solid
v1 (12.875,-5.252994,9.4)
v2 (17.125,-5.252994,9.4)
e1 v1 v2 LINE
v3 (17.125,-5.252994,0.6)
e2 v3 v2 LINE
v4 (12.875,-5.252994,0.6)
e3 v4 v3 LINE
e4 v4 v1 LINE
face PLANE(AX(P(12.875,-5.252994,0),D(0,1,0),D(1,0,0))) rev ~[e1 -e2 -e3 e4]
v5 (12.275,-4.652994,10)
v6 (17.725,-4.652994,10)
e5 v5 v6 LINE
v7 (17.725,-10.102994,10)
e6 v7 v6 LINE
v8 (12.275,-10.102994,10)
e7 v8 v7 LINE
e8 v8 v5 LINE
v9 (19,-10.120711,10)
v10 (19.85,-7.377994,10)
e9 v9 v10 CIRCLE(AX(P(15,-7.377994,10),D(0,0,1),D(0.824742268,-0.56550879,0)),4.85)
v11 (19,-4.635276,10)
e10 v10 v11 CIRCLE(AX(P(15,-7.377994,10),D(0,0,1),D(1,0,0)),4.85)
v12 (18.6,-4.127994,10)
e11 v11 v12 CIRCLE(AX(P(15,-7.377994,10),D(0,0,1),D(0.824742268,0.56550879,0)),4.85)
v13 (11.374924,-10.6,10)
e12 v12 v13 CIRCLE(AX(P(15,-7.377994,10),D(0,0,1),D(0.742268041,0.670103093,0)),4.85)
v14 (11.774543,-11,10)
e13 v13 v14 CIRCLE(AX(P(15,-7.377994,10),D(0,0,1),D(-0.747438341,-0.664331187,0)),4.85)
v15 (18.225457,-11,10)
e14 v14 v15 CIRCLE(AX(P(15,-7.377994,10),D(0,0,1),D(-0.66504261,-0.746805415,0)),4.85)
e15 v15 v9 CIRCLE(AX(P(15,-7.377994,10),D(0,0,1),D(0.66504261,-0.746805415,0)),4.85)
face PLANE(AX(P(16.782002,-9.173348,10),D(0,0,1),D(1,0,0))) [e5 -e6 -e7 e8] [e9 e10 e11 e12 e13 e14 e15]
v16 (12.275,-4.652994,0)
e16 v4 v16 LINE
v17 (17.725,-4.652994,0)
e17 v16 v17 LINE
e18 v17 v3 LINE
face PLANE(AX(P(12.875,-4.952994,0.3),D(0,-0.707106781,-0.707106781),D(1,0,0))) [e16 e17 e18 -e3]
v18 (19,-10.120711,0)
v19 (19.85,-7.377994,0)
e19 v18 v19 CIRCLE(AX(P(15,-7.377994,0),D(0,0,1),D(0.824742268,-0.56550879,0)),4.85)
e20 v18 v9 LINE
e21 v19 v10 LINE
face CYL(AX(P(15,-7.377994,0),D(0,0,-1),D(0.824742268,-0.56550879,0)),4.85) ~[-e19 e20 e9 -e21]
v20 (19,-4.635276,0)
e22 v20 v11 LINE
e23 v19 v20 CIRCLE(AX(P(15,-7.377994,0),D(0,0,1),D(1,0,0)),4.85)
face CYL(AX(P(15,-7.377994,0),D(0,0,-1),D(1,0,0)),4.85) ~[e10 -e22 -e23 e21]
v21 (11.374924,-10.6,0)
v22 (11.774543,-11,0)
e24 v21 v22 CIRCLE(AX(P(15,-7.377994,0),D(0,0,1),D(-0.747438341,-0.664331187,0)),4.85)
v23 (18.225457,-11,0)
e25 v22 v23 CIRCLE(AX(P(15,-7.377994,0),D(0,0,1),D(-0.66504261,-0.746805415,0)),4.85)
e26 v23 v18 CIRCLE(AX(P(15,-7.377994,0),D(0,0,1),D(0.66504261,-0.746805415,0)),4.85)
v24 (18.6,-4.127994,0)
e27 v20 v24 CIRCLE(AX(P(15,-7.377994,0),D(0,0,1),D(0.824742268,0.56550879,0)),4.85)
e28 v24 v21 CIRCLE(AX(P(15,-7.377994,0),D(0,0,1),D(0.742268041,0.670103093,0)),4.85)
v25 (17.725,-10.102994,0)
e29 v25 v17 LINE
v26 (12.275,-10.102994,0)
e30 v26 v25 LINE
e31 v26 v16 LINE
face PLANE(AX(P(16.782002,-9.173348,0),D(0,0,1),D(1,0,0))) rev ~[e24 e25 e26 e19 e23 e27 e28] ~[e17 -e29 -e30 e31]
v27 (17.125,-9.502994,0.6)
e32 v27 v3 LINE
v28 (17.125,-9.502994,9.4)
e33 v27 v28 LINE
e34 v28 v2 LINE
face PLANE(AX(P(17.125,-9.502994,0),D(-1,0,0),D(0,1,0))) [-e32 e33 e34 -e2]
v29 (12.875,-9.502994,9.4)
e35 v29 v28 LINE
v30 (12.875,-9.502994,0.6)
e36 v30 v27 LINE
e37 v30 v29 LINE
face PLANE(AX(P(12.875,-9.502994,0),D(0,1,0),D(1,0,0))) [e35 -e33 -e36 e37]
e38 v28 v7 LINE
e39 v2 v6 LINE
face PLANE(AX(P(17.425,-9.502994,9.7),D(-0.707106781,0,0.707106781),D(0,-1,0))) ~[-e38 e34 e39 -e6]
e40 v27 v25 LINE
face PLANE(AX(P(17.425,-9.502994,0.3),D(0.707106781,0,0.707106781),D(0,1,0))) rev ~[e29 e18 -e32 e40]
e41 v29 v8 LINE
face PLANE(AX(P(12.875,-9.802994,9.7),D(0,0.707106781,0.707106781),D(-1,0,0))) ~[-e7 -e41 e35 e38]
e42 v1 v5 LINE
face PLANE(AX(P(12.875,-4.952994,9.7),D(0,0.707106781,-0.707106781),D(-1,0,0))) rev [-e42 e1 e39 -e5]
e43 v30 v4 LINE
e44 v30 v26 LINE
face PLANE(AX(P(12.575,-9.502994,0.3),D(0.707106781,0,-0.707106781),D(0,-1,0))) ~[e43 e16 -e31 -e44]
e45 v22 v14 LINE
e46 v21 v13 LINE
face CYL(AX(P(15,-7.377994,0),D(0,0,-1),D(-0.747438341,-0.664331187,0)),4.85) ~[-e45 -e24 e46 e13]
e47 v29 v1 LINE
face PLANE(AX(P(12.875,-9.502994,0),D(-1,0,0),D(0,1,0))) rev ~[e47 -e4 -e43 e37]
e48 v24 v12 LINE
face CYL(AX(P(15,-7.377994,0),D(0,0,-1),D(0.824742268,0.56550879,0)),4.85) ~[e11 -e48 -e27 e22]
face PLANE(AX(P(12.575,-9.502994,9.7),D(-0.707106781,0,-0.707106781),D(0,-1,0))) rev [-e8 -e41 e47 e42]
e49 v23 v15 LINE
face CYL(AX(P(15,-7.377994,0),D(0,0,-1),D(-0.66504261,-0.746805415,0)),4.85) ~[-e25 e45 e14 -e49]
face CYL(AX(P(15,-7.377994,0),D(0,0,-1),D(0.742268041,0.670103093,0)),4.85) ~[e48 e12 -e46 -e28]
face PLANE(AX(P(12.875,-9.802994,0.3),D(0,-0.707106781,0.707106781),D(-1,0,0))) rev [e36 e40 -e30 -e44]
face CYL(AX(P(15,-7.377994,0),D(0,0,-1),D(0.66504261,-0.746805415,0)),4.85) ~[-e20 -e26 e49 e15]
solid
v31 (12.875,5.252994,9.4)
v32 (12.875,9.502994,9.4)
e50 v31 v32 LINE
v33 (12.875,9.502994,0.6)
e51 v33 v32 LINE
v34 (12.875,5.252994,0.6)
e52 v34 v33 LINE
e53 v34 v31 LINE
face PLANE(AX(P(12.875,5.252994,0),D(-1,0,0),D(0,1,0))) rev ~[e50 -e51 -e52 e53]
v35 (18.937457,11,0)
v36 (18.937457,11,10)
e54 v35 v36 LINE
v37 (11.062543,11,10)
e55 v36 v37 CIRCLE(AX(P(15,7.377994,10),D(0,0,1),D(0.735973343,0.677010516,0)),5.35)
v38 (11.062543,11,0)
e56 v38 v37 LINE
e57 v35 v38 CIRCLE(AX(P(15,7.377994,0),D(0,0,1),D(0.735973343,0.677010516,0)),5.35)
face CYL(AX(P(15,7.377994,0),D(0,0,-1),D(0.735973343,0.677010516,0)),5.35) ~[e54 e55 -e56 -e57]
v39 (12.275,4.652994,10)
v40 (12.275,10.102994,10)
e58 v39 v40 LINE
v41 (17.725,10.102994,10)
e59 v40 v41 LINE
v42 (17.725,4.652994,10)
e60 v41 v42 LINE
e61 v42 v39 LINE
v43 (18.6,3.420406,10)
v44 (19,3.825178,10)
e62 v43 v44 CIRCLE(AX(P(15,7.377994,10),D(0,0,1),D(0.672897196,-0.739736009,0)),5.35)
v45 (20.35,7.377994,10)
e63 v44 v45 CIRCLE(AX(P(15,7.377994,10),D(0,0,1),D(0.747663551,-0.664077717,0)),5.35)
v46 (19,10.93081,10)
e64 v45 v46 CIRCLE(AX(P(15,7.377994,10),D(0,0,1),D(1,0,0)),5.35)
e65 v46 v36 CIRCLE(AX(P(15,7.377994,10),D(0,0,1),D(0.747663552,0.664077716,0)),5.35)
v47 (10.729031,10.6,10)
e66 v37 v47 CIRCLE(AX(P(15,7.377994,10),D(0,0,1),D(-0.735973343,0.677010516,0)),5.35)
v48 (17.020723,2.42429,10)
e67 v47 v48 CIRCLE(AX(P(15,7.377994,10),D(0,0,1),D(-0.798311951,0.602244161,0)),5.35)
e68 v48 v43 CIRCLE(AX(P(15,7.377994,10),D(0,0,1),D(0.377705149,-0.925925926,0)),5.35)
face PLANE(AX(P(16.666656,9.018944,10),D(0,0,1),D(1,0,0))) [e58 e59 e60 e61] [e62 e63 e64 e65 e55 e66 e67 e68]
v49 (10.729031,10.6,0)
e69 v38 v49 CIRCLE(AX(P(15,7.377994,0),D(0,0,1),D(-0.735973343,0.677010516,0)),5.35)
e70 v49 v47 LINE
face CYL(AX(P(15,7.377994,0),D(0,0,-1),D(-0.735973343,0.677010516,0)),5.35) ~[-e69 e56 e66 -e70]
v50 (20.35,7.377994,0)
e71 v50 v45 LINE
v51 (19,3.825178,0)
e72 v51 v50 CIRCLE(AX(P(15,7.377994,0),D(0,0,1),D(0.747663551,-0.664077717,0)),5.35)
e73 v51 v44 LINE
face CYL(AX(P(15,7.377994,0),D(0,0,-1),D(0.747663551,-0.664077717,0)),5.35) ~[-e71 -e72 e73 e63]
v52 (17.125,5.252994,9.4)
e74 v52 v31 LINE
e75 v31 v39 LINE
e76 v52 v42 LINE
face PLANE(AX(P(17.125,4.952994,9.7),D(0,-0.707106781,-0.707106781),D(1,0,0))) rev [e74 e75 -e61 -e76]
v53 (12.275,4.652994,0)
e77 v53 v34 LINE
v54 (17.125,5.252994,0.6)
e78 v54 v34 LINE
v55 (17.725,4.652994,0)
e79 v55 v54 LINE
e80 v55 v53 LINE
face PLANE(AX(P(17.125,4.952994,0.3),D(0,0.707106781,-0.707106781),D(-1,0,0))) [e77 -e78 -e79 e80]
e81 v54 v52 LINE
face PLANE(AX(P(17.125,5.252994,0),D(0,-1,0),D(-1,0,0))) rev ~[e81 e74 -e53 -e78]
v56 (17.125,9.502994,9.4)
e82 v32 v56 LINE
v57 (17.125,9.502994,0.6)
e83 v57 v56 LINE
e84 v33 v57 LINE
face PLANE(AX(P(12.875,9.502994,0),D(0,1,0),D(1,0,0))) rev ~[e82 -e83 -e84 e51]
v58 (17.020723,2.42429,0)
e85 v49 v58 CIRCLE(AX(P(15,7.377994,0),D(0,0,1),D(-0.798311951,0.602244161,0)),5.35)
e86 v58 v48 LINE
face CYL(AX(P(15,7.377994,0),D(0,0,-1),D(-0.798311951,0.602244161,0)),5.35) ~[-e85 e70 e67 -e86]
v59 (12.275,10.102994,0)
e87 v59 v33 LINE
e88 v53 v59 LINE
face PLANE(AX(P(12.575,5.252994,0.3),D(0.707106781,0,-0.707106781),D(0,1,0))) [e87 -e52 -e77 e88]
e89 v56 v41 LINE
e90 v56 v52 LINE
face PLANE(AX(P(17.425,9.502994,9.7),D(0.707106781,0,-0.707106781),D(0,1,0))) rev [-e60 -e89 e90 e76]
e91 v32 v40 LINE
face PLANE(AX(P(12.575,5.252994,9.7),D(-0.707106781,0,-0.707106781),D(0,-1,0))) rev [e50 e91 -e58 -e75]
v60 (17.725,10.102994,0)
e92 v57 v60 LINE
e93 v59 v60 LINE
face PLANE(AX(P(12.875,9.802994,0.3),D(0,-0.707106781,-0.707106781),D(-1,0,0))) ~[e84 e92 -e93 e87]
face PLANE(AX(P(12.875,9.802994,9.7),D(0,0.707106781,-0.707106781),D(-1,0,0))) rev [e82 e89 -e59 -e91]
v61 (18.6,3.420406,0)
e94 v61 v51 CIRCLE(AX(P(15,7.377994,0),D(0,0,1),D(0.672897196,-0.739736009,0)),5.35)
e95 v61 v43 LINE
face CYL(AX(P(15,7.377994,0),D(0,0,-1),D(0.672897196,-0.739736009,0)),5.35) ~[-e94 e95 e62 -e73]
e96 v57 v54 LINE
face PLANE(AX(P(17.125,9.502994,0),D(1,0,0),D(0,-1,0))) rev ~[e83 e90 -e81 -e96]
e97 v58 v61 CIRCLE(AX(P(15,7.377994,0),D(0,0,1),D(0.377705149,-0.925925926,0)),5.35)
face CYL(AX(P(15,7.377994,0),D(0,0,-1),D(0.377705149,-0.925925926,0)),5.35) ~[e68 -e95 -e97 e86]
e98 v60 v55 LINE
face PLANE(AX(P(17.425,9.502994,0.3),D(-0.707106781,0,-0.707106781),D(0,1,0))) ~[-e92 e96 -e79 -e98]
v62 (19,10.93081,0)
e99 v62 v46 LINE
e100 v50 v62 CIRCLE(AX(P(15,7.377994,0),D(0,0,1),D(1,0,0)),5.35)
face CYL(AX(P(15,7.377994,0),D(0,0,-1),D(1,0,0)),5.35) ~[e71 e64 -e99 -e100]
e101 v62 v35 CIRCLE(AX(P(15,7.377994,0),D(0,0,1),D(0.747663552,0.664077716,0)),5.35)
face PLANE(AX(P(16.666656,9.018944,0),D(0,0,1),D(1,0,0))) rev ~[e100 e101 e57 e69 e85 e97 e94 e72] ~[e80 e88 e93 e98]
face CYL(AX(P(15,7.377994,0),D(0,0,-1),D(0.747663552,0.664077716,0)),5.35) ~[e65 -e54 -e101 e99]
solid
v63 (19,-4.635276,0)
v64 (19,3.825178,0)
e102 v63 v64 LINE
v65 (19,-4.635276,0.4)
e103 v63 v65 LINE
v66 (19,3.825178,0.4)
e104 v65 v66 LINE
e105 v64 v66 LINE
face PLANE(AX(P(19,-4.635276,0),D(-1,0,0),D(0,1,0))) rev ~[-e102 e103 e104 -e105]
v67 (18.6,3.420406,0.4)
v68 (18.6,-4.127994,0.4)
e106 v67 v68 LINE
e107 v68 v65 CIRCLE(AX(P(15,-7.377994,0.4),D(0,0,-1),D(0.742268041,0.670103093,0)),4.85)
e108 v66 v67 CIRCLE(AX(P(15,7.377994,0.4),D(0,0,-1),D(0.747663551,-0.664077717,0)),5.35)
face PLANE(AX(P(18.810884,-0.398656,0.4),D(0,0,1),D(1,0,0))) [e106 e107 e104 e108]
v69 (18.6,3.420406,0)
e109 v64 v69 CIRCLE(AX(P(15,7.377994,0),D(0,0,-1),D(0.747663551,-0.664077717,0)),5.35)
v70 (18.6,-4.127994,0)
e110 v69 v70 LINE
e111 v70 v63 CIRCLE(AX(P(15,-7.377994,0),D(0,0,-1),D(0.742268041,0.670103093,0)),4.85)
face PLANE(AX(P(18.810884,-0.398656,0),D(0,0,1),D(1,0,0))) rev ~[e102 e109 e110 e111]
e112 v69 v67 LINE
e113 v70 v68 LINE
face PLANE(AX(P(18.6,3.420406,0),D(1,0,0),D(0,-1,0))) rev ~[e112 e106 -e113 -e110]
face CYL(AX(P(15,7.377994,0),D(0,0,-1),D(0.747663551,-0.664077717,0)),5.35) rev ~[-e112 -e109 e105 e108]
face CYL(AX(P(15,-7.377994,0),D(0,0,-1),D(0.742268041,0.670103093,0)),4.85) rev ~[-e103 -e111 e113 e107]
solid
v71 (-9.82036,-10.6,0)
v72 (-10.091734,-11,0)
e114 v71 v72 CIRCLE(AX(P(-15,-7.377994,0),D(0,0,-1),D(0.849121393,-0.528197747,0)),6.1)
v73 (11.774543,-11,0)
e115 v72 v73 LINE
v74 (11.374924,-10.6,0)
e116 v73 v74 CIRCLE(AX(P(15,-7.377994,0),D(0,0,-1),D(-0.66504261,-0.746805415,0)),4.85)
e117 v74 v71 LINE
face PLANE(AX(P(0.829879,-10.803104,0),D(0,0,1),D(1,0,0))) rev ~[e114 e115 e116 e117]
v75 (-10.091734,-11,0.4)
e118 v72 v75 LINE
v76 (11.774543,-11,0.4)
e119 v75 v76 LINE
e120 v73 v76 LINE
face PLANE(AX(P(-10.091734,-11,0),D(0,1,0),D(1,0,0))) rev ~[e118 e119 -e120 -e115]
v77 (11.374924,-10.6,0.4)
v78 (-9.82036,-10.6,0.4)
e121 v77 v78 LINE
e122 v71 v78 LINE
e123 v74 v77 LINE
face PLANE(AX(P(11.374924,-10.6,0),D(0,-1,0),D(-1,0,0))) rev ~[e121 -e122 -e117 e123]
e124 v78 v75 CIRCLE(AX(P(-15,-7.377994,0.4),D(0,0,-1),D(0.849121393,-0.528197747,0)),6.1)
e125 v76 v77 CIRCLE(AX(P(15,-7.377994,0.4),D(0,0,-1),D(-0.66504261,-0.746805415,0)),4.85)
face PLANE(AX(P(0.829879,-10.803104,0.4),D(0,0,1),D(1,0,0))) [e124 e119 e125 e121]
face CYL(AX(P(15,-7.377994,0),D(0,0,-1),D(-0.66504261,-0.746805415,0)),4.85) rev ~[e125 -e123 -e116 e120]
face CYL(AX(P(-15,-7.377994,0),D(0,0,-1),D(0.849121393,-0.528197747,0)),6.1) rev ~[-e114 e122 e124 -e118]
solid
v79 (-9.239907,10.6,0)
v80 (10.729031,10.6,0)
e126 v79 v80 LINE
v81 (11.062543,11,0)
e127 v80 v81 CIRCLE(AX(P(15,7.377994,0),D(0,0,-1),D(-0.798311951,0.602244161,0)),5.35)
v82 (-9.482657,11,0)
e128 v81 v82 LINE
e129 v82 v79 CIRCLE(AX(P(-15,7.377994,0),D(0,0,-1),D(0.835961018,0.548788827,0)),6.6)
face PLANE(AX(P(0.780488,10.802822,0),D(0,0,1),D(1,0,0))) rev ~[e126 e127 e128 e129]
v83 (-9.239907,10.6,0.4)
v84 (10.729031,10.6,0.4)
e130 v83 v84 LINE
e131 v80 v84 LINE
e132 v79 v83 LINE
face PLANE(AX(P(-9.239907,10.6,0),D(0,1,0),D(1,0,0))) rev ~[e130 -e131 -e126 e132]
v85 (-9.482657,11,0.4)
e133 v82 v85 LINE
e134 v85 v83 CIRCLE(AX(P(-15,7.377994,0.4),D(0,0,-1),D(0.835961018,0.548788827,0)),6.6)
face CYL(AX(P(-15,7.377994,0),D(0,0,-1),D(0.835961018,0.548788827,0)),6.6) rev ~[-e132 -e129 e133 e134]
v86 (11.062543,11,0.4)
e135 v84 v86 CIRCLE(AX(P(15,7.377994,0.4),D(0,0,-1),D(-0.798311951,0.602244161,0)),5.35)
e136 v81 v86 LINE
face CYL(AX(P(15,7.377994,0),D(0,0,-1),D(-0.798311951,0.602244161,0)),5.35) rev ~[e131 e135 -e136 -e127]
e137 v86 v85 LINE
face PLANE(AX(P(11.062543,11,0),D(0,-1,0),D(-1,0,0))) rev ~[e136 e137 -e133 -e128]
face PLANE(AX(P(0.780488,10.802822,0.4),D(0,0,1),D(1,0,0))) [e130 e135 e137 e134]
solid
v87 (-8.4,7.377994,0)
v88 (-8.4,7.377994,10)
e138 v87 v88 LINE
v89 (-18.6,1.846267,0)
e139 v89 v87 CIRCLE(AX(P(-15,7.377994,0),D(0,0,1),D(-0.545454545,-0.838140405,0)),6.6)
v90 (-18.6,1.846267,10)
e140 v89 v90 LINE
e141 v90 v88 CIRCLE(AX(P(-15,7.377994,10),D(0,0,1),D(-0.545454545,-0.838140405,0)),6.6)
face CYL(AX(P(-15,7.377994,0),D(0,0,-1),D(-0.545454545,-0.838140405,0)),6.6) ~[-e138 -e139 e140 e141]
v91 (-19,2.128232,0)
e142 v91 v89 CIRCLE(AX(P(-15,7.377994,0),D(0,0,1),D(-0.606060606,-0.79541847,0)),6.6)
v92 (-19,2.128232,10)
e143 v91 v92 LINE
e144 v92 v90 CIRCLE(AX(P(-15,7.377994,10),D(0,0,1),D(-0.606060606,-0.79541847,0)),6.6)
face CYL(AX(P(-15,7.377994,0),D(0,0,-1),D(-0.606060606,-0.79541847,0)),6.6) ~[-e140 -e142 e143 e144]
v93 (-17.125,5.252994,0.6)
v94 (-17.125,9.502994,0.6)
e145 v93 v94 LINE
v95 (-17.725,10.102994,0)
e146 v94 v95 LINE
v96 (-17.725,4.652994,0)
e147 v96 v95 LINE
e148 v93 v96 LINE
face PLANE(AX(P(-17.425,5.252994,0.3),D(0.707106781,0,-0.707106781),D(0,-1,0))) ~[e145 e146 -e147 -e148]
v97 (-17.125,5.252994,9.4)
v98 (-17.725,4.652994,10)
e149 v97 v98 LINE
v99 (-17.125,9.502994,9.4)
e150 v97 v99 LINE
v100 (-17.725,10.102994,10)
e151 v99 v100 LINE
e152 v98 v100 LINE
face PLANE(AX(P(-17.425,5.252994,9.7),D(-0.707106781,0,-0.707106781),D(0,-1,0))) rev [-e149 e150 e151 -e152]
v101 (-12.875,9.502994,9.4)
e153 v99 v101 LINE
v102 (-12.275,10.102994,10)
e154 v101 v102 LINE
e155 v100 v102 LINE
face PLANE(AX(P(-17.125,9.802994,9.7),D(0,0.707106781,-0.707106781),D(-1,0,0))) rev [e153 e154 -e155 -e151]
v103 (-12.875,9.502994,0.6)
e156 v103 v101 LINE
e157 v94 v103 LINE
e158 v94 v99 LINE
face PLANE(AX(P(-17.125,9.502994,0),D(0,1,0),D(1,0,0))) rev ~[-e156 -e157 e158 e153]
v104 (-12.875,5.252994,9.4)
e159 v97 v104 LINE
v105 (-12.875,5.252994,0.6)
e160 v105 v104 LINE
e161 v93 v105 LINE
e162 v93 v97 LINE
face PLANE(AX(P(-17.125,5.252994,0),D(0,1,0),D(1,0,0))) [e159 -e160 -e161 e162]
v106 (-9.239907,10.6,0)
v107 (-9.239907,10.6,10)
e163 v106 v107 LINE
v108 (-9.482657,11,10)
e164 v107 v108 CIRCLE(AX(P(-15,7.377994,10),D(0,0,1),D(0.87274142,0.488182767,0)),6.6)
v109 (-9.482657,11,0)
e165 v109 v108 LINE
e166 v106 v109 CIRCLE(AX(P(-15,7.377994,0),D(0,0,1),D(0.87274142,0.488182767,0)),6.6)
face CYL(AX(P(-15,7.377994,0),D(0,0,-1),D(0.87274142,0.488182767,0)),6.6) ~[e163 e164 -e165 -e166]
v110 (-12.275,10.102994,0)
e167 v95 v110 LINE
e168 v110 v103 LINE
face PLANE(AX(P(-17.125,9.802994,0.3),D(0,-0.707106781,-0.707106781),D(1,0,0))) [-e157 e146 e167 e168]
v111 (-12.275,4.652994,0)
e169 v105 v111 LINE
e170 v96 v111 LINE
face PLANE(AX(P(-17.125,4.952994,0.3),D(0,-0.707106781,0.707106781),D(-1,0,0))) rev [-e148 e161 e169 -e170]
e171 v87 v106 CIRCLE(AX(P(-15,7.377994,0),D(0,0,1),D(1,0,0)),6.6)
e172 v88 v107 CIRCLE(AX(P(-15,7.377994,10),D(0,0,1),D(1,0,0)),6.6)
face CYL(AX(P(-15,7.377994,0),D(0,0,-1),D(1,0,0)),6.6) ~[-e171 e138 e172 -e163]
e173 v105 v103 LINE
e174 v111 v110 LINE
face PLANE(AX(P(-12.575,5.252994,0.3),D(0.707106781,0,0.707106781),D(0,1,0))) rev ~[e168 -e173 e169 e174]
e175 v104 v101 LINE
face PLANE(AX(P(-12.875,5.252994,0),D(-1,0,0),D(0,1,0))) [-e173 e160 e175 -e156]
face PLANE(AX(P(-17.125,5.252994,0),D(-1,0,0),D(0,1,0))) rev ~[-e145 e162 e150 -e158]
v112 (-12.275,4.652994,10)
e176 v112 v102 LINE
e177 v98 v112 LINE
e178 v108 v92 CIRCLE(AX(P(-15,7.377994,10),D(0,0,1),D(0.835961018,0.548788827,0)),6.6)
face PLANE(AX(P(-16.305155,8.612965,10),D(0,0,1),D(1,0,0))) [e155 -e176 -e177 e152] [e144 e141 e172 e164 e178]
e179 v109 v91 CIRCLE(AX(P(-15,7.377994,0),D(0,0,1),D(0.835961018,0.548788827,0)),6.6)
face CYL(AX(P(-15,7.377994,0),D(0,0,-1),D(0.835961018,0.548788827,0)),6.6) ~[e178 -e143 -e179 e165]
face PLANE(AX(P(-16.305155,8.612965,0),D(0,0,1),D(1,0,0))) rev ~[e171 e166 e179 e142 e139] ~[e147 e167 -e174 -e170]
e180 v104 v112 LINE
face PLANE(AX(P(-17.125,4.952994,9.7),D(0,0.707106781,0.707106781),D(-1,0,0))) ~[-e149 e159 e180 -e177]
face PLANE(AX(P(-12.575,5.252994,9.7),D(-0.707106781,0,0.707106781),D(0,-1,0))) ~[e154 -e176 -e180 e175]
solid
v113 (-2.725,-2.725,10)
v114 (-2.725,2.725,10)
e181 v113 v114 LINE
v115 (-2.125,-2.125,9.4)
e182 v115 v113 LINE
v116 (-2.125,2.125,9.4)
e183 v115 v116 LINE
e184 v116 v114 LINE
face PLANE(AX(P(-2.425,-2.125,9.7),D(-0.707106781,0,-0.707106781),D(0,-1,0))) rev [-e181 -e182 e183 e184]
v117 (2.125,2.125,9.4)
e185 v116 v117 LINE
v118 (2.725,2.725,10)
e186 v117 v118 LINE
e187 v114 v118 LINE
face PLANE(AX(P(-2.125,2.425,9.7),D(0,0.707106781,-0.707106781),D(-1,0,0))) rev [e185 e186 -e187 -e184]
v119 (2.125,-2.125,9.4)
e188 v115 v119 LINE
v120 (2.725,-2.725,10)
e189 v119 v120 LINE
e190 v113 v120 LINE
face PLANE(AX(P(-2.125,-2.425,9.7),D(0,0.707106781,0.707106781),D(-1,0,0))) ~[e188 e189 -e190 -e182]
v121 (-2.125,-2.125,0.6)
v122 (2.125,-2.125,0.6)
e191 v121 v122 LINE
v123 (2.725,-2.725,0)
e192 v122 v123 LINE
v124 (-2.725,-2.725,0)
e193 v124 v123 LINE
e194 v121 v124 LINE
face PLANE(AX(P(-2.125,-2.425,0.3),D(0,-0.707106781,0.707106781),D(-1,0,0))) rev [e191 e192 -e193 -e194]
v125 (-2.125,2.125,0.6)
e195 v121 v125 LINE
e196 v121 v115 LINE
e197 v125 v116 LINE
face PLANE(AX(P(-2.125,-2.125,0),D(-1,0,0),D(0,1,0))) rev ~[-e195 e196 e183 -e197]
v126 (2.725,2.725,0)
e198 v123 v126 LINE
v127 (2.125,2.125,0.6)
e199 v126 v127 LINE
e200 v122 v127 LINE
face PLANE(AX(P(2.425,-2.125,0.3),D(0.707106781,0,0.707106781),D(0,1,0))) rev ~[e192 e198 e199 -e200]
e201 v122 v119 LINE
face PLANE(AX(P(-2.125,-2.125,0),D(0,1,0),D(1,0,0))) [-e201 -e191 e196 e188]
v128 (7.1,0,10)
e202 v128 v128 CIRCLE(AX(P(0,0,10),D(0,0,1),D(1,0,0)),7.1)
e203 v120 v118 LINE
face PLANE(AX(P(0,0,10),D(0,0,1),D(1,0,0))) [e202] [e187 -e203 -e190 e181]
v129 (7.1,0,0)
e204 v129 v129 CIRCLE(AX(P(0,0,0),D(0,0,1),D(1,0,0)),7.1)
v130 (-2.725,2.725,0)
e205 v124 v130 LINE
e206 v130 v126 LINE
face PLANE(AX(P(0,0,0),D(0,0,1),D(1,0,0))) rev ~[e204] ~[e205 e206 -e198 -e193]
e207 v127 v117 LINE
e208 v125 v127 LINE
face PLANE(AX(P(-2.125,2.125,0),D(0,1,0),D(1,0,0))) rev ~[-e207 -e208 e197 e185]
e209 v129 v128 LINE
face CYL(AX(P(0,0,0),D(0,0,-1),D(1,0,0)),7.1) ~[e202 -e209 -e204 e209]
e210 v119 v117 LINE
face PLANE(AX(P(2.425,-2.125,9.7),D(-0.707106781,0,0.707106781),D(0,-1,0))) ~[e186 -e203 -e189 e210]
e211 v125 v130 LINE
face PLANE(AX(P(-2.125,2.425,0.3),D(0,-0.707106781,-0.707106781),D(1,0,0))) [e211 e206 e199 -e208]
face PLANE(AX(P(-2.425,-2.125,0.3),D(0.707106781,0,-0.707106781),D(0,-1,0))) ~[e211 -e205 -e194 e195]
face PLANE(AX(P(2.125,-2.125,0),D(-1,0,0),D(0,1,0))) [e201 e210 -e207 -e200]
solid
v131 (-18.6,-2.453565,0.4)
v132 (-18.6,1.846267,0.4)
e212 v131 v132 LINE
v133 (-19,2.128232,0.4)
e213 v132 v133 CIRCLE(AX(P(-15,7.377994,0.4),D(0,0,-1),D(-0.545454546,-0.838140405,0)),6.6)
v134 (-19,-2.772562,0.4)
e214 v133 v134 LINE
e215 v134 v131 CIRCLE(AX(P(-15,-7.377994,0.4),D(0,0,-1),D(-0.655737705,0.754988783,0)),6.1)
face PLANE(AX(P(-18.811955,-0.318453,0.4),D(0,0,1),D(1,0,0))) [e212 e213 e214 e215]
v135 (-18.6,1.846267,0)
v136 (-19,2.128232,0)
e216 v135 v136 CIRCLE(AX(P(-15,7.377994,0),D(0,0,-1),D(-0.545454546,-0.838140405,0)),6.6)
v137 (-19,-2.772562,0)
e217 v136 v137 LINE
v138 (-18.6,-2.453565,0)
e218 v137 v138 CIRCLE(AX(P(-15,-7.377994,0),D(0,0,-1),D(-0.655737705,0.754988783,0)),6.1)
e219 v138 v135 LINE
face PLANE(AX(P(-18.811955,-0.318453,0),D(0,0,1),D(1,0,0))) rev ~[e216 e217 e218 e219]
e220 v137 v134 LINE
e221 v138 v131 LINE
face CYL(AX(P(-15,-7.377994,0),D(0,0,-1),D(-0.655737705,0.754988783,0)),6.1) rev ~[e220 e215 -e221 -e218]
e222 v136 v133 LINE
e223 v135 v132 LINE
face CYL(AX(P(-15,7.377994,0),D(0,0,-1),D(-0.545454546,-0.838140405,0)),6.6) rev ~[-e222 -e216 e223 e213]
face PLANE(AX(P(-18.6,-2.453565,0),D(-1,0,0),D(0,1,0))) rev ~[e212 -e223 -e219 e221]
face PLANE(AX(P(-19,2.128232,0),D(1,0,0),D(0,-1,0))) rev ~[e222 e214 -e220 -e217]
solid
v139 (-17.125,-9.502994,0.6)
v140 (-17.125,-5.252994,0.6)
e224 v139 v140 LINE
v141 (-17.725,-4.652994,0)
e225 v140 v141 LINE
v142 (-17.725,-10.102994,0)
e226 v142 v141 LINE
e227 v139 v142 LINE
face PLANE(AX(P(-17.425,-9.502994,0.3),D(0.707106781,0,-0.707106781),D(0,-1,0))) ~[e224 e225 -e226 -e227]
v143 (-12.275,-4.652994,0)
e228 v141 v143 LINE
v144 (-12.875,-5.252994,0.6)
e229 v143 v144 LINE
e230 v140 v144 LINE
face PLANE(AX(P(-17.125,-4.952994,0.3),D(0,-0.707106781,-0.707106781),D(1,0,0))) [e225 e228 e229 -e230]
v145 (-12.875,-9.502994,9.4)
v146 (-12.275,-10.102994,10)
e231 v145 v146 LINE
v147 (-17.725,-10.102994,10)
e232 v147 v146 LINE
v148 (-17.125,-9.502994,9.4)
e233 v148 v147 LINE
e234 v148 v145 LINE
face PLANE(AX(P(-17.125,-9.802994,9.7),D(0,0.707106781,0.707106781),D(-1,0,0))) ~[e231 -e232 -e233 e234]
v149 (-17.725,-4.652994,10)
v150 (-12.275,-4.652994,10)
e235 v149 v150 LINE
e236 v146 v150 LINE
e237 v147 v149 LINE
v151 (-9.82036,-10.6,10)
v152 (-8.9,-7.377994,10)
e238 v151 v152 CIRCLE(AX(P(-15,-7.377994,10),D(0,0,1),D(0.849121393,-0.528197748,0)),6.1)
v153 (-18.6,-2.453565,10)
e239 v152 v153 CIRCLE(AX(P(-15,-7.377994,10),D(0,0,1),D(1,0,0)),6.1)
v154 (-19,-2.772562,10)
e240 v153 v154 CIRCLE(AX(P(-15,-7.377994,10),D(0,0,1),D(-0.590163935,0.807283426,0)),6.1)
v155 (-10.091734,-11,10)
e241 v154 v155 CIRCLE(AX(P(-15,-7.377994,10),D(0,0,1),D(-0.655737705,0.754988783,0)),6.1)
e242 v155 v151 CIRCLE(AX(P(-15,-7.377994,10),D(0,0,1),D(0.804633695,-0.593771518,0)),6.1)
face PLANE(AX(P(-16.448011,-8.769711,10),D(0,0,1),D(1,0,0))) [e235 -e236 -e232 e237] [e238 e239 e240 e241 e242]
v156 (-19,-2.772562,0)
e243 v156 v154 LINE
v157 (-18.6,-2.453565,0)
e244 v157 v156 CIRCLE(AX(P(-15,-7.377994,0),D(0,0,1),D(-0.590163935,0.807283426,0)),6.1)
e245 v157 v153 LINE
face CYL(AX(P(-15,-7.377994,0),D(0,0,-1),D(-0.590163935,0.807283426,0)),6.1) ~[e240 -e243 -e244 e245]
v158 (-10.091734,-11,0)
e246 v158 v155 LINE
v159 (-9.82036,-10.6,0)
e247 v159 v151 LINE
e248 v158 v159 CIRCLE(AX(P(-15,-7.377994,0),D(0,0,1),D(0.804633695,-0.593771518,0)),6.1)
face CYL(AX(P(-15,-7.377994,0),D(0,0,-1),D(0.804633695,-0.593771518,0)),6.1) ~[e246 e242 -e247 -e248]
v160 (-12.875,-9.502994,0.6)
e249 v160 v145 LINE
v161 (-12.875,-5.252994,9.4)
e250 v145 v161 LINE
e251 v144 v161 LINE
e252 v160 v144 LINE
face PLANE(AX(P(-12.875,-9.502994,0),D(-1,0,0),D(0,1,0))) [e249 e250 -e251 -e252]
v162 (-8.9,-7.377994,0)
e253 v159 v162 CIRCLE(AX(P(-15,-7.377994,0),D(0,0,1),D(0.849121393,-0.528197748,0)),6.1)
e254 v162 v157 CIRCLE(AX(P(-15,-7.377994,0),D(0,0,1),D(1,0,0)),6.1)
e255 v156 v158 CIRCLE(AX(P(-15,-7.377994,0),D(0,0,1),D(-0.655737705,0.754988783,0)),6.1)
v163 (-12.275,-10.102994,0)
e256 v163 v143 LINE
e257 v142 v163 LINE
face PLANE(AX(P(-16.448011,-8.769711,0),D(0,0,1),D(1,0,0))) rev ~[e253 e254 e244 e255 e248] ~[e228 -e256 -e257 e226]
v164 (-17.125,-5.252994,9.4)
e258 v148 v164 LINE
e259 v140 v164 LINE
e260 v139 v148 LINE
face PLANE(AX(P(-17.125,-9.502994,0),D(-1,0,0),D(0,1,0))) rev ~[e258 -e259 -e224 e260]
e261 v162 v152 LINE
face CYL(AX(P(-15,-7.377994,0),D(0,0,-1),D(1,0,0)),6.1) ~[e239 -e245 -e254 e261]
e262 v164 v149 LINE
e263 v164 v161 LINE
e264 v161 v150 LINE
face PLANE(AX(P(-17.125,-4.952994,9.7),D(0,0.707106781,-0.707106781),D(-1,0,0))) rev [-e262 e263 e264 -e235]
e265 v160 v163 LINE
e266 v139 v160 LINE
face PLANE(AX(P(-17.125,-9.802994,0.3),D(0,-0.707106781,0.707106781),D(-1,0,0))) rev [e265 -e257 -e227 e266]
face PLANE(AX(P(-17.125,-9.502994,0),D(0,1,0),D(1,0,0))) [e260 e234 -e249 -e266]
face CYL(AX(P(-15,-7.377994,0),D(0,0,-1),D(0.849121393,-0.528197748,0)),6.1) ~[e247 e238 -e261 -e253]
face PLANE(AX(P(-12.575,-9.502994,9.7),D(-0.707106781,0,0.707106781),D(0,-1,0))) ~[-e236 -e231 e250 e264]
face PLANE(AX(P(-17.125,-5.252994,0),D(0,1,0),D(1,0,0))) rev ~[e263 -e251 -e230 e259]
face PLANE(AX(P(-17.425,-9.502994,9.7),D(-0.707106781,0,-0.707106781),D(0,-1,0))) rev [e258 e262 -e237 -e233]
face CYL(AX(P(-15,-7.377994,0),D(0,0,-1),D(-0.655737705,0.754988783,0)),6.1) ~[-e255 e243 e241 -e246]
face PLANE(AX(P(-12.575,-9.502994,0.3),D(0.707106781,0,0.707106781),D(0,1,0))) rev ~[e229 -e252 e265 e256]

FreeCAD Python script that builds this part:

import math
import FreeCAD as App
import Part
import Sketcher
Q = App.Units.Quantity


def edges_at(feature, points):
    """Names of the edges that pass closest to the given points."""
    edges = feature.Shape.Edges
    near = lambda p: min(range(len(edges)), key=lambda i: edges[i].distToShape(Part.Vertex(*p))[0])
    return sorted({f"Edge{near(p) + 1}" for p in points})

doc = App.newDocument("Part")
body = doc.addObject("PartDesign::Body", "Body")

sketch1 = body.newObject("Sketcher::SketchObject", "Sketch")
sketch1.AttachmentSupport = (doc.getObject("XY_Plane"), [""])
sketch1.MapMode = "FlatFace"
sketch1.addGeometry([
    Part.ArcOfCircle(Part.Circle(App.Vector(15, -7.4, 0), App.Vector(0, 0, 1), 4.8), math.radians(34.44), math.radians(42.08)),
    Part.ArcOfCircle(Part.Circle(App.Vector(15, -7.4, 0), App.Vector(0, 0, 1), 4.8), math.radians(42), math.radians(222)),
    Part.ArcOfCircle(Part.Circle(App.Vector(15, -7.4, 0), App.Vector(0, 0, 1), 4.8), math.radians(-138.37), math.radians(-131.69)),
    Part.ArcOfCircle(Part.Circle(App.Vector(15, -7.4, 0), App.Vector(0, 0, 1), 4.8), math.radians(-132), math.radians(-48)),
    Part.ArcOfCircle(Part.Circle(App.Vector(15, -7.4, 0), App.Vector(0, 0, 1), 4.8), math.radians(-48.31), math.radians(-34.44)),
    Part.ArcOfCircle(Part.Circle(App.Vector(15, -7.4, 0), App.Vector(0, 0, 1), 4.8), math.radians(-34), math.radians(0)),
    Part.ArcOfCircle(Part.Circle(App.Vector(15, -7.4, 0), App.Vector(0, 0, 1), 4.9), math.radians(0), math.radians(34)),
    Part.LineSegment(App.Vector(17.1, -9.5, 0), App.Vector(12.9, -9.5, 0)),
    Part.LineSegment(App.Vector(12.9, -9.5, 0), App.Vector(12.9, -5.3, 0)),
    Part.LineSegment(App.Vector(12.9, -5.3, 0), App.Vector(17.1, -5.3, 0)),
    Part.LineSegment(App.Vector(17.1, -5.3, 0), App.Vector(17.1, -9.5, 0)),
], False)
sketch1.addConstraint([
    Sketcher.Constraint("Tangent", 0, 2, 1, 1),
    Sketcher.Constraint("Tangent", 1, 2, 2, 1),
    Sketcher.Constraint("Tangent", 2, 2, 3, 1),
    Sketcher.Constraint("Tangent", 3, 2, 4, 1),
    Sketcher.Constraint("Tangent", 4, 2, 5, 1),
    Sketcher.Constraint("Tangent", 5, 2, 6, 1),
    Sketcher.Constraint("Tangent", 6, 2, 0, 1),
    Sketcher.Constraint("Coincident", 7, 2, 8, 1),
    Sketcher.Constraint("Coincident", 8, 2, 9, 1),
    Sketcher.Constraint("Coincident", 9, 2, 10, 1),
    Sketcher.Constraint("Coincident", 10, 2, 7, 1),
    Sketcher.Constraint("Horizontal", 7),
    Sketcher.Constraint("Vertical", 8),
    Sketcher.Constraint("Horizontal", 9),
    Sketcher.Constraint("Vertical", 10),
    Sketcher.Constraint("Coincident", 2, 3, 0, 3),
    Sketcher.Constraint("Coincident", 4, 3, 0, 3),
    Sketcher.Constraint("Horizontal", 2, 2, 3, 2),
    Sketcher.Constraint("Horizontal", 6, 3, 5, 2),
    Sketcher.Constraint("Vertical", 4, 2, 6, 2),
    Sketcher.Constraint("Equal", 9, 8),
    Sketcher.Constraint("Radius", 0, Q("4.85 mm")),
    Sketcher.Constraint("DistanceX", -1, 1, 0, 3, Q("15 mm")),
    Sketcher.Constraint("DistanceY", 2, 2, -1, 1, Q("11 mm")),
    Sketcher.Constraint("DistanceX", -1, 1, 4, 2, Q("19 mm")),
    Sketcher.Constraint("DistanceX", 7, 2, 7, 1, Q("4.25 mm")),
    Sketcher.Constraint("DistanceX", -1, 1, 0, 2, Q("18.6 mm")),
    Sketcher.Constraint("DistanceY", 1, 2, -1, 1, Q("10.6 mm")),
    Sketcher.Constraint("DistanceX", -1, 1, 7, 2, Q("12.875 mm")),
    Sketcher.Constraint("DistanceY", 7, 2, 2, 3, Q("2.125 mm")),
    Sketcher.Constraint("DistanceY", 4, 2, -1, 1, Q("10.120711 mm")),
])
pad1 = body.newObject("PartDesign::Pad", "Pad")
pad1.Profile = sketch1
pad1.Length = 10
doc.recompute()

chamfer = body.newObject("PartDesign::Chamfer", "Chamfer")
chamfer.Base = (pad1, edges_at(pad1, [
    (12.875, -7.378, 10),
    (15, -5.253, 10),
    (17.125, -7.378, 10),
    (15, -9.503, 10),
]))
chamfer.Size = 0.6
doc.recompute()

chamfer2 = body.newObject("PartDesign::Chamfer", "Chamfer001")
chamfer2.Base = (chamfer, edges_at(chamfer, [
    (12.875, -7.378, 0),
    (15, -9.503, 0),
    (17.125, -7.378, 0),
    (15, -5.253, 0),
]))
chamfer2.Size = 0.6
body2 = doc.addObject("PartDesign::Body", "Body001")

sketch2 = body2.newObject("Sketcher::SketchObject", "Sketch001")
sketch2.AttachmentSupport = (doc.getObject("XY_Plane001"), [""])
sketch2.MapMode = "FlatFace"
sketch2.addGeometry([
    Part.ArcOfCircle(Part.Circle(App.Vector(-15, 7.38, 0), App.Vector(0, 0, 1), 6.6), math.radians(29.22), math.radians(33.28)),
    Part.ArcOfCircle(Part.Circle(App.Vector(-15, 7.38, 0), App.Vector(0, 0, 1), 6.6), math.radians(33), math.radians(233)),
    Part.ArcOfCircle(Part.Circle(App.Vector(-15, 7.38, 0), App.Vector(0, 0, 1), 6.6), math.radians(-127.31), math.radians(-123.06)),
    Part.ArcOfCircle(Part.Circle(App.Vector(-15, 7.38, 0), App.Vector(0, 0, 1), 6.6), math.radians(-123), math.radians(0)),
    Part.ArcOfCircle(Part.Circle(App.Vector(-15, 7.38, 0), App.Vector(0, 0, 1), 6.6), math.radians(0), math.radians(29)),
    Part.LineSegment(App.Vector(-12.88, 5.25, 0), App.Vector(-17.12, 5.25, 0)),
    Part.LineSegment(App.Vector(-17.12, 5.25, 0), App.Vector(-17.12, 9.5, 0)),
    Part.LineSegment(App.Vector(-17.12, 9.5, 0), App.Vector(-12.88, 9.5, 0)),
    Part.LineSegment(App.Vector(-12.88, 9.5, 0), App.Vector(-12.88, 5.25, 0)),
], False)
sketch2.addConstraint([
    Sketcher.Constraint("Tangent", 0, 2, 1, 1),
    Sketcher.Constraint("Tangent", 1, 2, 2, 1),
    Sketcher.Constraint("Tangent", 2, 2, 3, 1),
    Sketcher.Constraint("Tangent", 3, 2, 4, 1),
    Sketcher.Constraint("Tangent", 4, 2, 0, 1),
    Sketcher.Constraint("Coincident", 5, 2, 6, 1),
    Sketcher.Constraint("Coincident", 6, 2, 7, 1),
    Sketcher.Constraint("Coincident", 7, 2, 8, 1),
    Sketcher.Constraint("Coincident", 8, 2, 5, 1),
    Sketcher.Constraint("Horizontal", 5),
    Sketcher.Constraint("Vertical", 6),
    Sketcher.Constraint("Horizontal", 7),
    Sketcher.Constraint("Vertical", 8),
    Sketcher.Constraint("Coincident", 2, 3, 0, 3),
    Sketcher.Constraint("Horizontal", 4, 3, 3, 2),
    Sketcher.Constraint("Equal", 7, 6),
    Sketcher.Constraint("Radius", 0, Q("6.6 mm")),
    Sketcher.Constraint("DistanceX", 0, 3, -1, 1, Q("15 mm")),
    Sketcher.Constraint("DistanceY", -1, 1, 0, 2, Q("11 mm")),
    Sketcher.Constraint("DistanceX", 1, 2, -1, 1, Q("19 mm")),
    Sketcher.Constraint("DistanceX", 5, 2, 5, 1, Q("4.25 mm")),
    Sketcher.Constraint("DistanceX", 2, 2, -1, 1, Q("18.6 mm")),
    Sketcher.Constraint("DistanceY", -1, 1, 4, 2, Q("10.6 mm")),
    Sketcher.Constraint("DistanceX", 5, 2, -1, 1, Q("17.125 mm")),
    Sketcher.Constraint("DistanceY", 5, 2, 0, 3, Q("2.125 mm")),
    Sketcher.Constraint("DistanceY", -1, 1, 1, 2, Q("2.128232 mm")),
])
pad2 = body2.newObject("PartDesign::Pad", "Pad001")
pad2.Profile = sketch2
pad2.Length = 10
doc.recompute()

chamfer3 = body2.newObject("PartDesign::Chamfer", "Chamfer002")
chamfer3.Base = (pad2, edges_at(pad2, [
    (-17.125, 7.378, 10),
    (-15, 5.253, 10),
    (-12.875, 7.378, 10),
    (-15, 9.503, 10),
]))
chamfer3.Size = 0.6
doc.recompute()

chamfer4 = body2.newObject("PartDesign::Chamfer", "Chamfer003")
chamfer4.Base = (chamfer3, edges_at(chamfer3, [
    (-15, 5.253, 0),
    (-17.125, 7.378, 0),
    (-15, 9.503, 0),
    (-12.875, 7.378, 0),
]))
chamfer4.Size = 0.6
body3 = doc.addObject("PartDesign::Body", "Body002")

sketch3 = body3.newObject("Sketcher::SketchObject", "Sketch002")
sketch3.AttachmentSupport = (doc.getObject("XY_Plane002"), [""])
sketch3.MapMode = "FlatFace"
sketch3.addGeometry([
    Part.ArcOfCircle(Part.Circle(App.Vector(-15, -7.38, 0), App.Vector(0, 0, 1), 6.1), math.radians(126.17), math.radians(130.98)),
    Part.ArcOfCircle(Part.Circle(App.Vector(-15, -7.38, 0), App.Vector(0, 0, 1), 6.1), math.radians(131), math.radians(324)),
    Part.ArcOfCircle(Part.Circle(App.Vector(-15, -7.38, 0), App.Vector(0, 0, 1), 6.1), math.radians(-36.43), math.radians(-31.88)),
    Part.ArcOfCircle(Part.Circle(App.Vector(-15, -7.38, 0), App.Vector(0, 0, 1), 6.1), math.radians(-32), math.radians(0)),
    Part.ArcOfCircle(Part.Circle(App.Vector(-15, -7.38, 0), App.Vector(0, 0, 1), 6.1), math.radians(0), math.radians(126)),
    Part.LineSegment(App.Vector(-12.88, -9.5, 0), App.Vector(-17.12, -9.5, 0)),
    Part.LineSegment(App.Vector(-17.12, -9.5, 0), App.Vector(-17.12, -5.25, 0)),
    Part.LineSegment(App.Vector(-17.12, -5.25, 0), App.Vector(-12.88, -5.25, 0)),
    Part.LineSegment(App.Vector(-12.88, -5.25, 0), App.Vector(-12.88, -9.5, 0)),
], False)
sketch3.addConstraint([
    Sketcher.Constraint("Tangent", 0, 2, 1, 1),
    Sketcher.Constraint("Tangent", 1, 2, 2, 1),
    Sketcher.Constraint("Tangent", 2, 2, 3, 1),
    Sketcher.Constraint("Tangent", 3, 2, 4, 1),
    Sketcher.Constraint("Tangent", 4, 2, 0, 1),
    Sketcher.Constraint("Coincident", 5, 2, 6, 1),
    Sketcher.Constraint("Coincident", 6, 2, 7, 1),
    Sketcher.Constraint("Coincident", 7, 2, 8, 1),
    Sketcher.Constraint("Coincident", 8, 2, 5, 1),
    Sketcher.Constraint("Horizontal", 5),
    Sketcher.Constraint("Vertical", 6),
    Sketcher.Constraint("Horizontal", 7),
    Sketcher.Constraint("Vertical", 8),
    Sketcher.Constraint("Coincident", 2, 3, 0, 3),
    Sketcher.Constraint("Horizontal", 4, 3, 3, 2),
    Sketcher.Constraint("Equal", 7, 6),
    Sketcher.Constraint("Radius", 0, Q("6.1 mm")),
    Sketcher.Constraint("DistanceX", 0, 3, -1, 1, Q("15 mm")),
    Sketcher.Constraint("DistanceX", 0, 2, -1, 1, Q("19 mm")),
    Sketcher.Constraint("DistanceY", 1, 2, -1, 1, Q("11 mm")),
    Sketcher.Constraint("DistanceX", 5, 2, 5, 1, Q("4.25 mm")),
    Sketcher.Constraint("DistanceY", 2, 2, -1, 1, Q("10.6 mm")),
    Sketcher.Constraint("DistanceX", 4, 2, -1, 1, Q("18.6 mm")),
    Sketcher.Constraint("DistanceX", 5, 2, -1, 1, Q("17.125 mm")),
    Sketcher.Constraint("DistanceY", 5, 2, 1, 3, Q("2.125 mm")),
    Sketcher.Constraint("DistanceX", 2, 2, -1, 1, Q("9.82036 mm")),
])
pad3 = body3.newObject("PartDesign::Pad", "Pad002")
pad3.Profile = sketch3
pad3.Length = 10
doc.recompute()

chamfer5 = body3.newObject("PartDesign::Chamfer", "Chamfer004")
chamfer5.Base = (pad3, edges_at(pad3, [
    (-17.125, -7.378, 10),
    (-15, -9.503, 10),
    (-15, -5.253, 10),
    (-12.875, -7.378, 10),
]))
chamfer5.Size = 0.6
doc.recompute()

chamfer6 = body3.newObject("PartDesign::Chamfer", "Chamfer005")
chamfer6.Base = (chamfer5, edges_at(chamfer5, [
    (-17.125, -7.378, 0),
    (-15, -9.503, 0),
    (-12.875, -7.378, 0),
    (-15, -5.253, 0),
]))
chamfer6.Size = 0.6
body4 = doc.addObject("PartDesign::Body", "Body003")

sketch4 = body4.newObject("Sketcher::SketchObject", "Sketch003")
sketch4.AttachmentSupport = (doc.getObject("XY_Plane003"), [""])
sketch4.MapMode = "FlatFace"
sketch4.addGeometry([
    Part.Circle(App.Vector(0, 0, 0), App.Vector(0, 0, 1), 7.1),
    Part.LineSegment(App.Vector(2.1, -2.1, 0), App.Vector(-2.1, -2.1, 0)),
    Part.LineSegment(App.Vector(-2.1, -2.1, 0), App.Vector(-2.1, 2.1, 0)),
    Part.LineSegment(App.Vector(-2.1, 2.1, 0), App.Vector(2.1, 2.1, 0)),
    Part.LineSegment(App.Vector(2.1, 2.1, 0), App.Vector(2.1, -2.1, 0)),
], False)
sketch4.addConstraint([
    Sketcher.Constraint("Coincident", 1, 2, 2, 1),
    Sketcher.Constraint("Coincident", 2, 2, 3, 1),
    Sketcher.Constraint("Coincident", 3, 2, 4, 1),
    Sketcher.Constraint("Coincident", 4, 2, 1, 1),
    Sketcher.Constraint("Horizontal", 1),
    Sketcher.Constraint("Vertical", 2),
    Sketcher.Constraint("Horizontal", 3),
    Sketcher.Constraint("Vertical", 4),
    Sketcher.Constraint("Coincident", 0, 3, -1, 1),
    Sketcher.Constraint("Symmetric", 1, 2, 3, 2, -1, 1),
    Sketcher.Constraint("Equal", 3, 2),
    Sketcher.Constraint("Diameter", 0, Q("14.2 mm")),
    Sketcher.Constraint("DistanceX", 1, 2, 1, 1, Q("4.25 mm")),
])
pad4 = body4.newObject("PartDesign::Pad", "Pad003")
pad4.Profile = sketch4
pad4.Length = 10
doc.recompute()

chamfer7 = body4.newObject("PartDesign::Chamfer", "Chamfer006")
chamfer7.Base = (pad4, edges_at(pad4, [
    (-2.125, 0, 10),
    (0, -2.125, 10),
    (0, 2.125, 10),
    (2.125, 0, 10),
]))
chamfer7.Size = 0.6
doc.recompute()

chamfer8 = body4.newObject("PartDesign::Chamfer", "Chamfer007")
chamfer8.Base = (chamfer7, edges_at(chamfer7, [
    (-2.125, 0, 0),
    (0, -2.125, 0),
    (2.125, 0, 0),
    (0, 2.125, 0),
]))
chamfer8.Size = 0.6
body5 = doc.addObject("PartDesign::Body", "Body004")

sketch5 = body5.newObject("Sketcher::SketchObject", "Sketch004")
sketch5.AttachmentSupport = (doc.getObject("XY_Plane004"), [""])
sketch5.MapMode = "FlatFace"
sketch5.addGeometry([
    Part.ArcOfCircle(Part.Circle(App.Vector(15, 7.38, 0), App.Vector(0, 0, 1), 5.35), math.radians(137.39), math.radians(142.97)),
    Part.ArcOfCircle(Part.Circle(App.Vector(15, 7.38, 0), App.Vector(0, 0, 1), 5.35), math.radians(143), math.radians(292)),
    Part.ArcOfCircle(Part.Circle(App.Vector(15, 7.38, 0), App.Vector(0, 0, 1), 5.35), math.radians(-68), math.radians(-48)),
    Part.ArcOfCircle(Part.Circle(App.Vector(15, 7.38, 0), App.Vector(0, 0, 1), 5.35), math.radians(-47.71), math.radians(-41.61)),
    Part.ArcOfCircle(Part.Circle(App.Vector(15, 7.38, 0), App.Vector(0, 0, 1), 5.35), math.radians(-42), math.radians(0)),
    Part.ArcOfCircle(Part.Circle(App.Vector(15, 7.38, 0), App.Vector(0, 0, 1), 5.35), math.radians(0), math.radians(42)),
    Part.ArcOfCircle(Part.Circle(App.Vector(15, 7.38, 0), App.Vector(0, 0, 1), 5.35), math.radians(41.61), math.radians(42.61)),
    Part.ArcOfCircle(Part.Circle(App.Vector(15, 7.38, 0), App.Vector(0, 0, 1), 5.35), math.radians(43), math.radians(137)),
    Part.LineSegment(App.Vector(17.12, 9.5, 0), App.Vector(17.12, 5.25, 0)),
    Part.LineSegment(App.Vector(17.12, 5.25, 0), App.Vector(12.88, 5.25, 0)),
    Part.LineSegment(App.Vector(12.88, 5.25, 0), App.Vector(12.88, 9.5, 0)),
    Part.LineSegment(App.Vector(12.88, 9.5, 0), App.Vector(17.12, 9.5, 0)),
], False)
sketch5.addConstraint([
    Sketcher.Constraint("Tangent", 0, 2, 1, 1),
    Sketcher.Constraint("Tangent", 1, 2, 2, 1),
    Sketcher.Constraint("Tangent", 2, 2, 3, 1),
    Sketcher.Constraint("Tangent", 3, 2, 4, 1),
    Sketcher.Constraint("Tangent", 4, 2, 5, 1),
    Sketcher.Constraint("Tangent", 5, 2, 6, 1),
    Sketcher.Constraint("Tangent", 6, 2, 7, 1),
    Sketcher.Constraint("Tangent", 7, 2, 0, 1),
    Sketcher.Constraint("Coincident", 8, 2, 9, 1),
    Sketcher.Constraint("Coincident", 9, 2, 10, 1),
    Sketcher.Constraint("Coincident", 10, 2, 11, 1),
    Sketcher.Constraint("Coincident", 11, 2, 8, 1),
    Sketcher.Constraint("Vertical", 8),
    Sketcher.Constraint("Horizontal", 9),
    Sketcher.Constraint("Vertical", 10),
    Sketcher.Constraint("Horizontal", 11),
    Sketcher.Constraint("Coincident", 2, 3, 0, 3),
    Sketcher.Constraint("Coincident", 4, 3, 0, 3),
    Sketcher.Constraint("Equal", 4, 5),
    Sketcher.Constraint("Horizontal", 7, 3, 4, 2),
    Sketcher.Constraint("Horizontal", 6, 2, 7, 2),
    Sketcher.Constraint("Vertical", 3, 2, 5, 2),
    Sketcher.Constraint("Equal", 11, 8),
    Sketcher.Constraint("Radius", 0, Q("5.35 mm")),
    Sketcher.Constraint("DistanceX", -1, 1, 0, 3, Q("15 mm")),
    Sketcher.Constraint("DistanceX", -1, 1, 3, 2, Q("19 mm")),
    Sketcher.Constraint("DistanceY", -1, 1, 6, 2, Q("11 mm")),
    Sketcher.Constraint("DistanceX", 9, 2, 9, 1, Q("4.25 mm")),
    Sketcher.Constraint("DistanceY", -1, 1, 0, 2, Q("10.6 mm")),
    Sketcher.Constraint("DistanceX", -1, 1, 2, 2, Q("18.6 mm")),
    Sketcher.Constraint("DistanceX", -1, 1, 8, 2, Q("17.125 mm")),
    Sketcher.Constraint("DistanceY", 8, 2, 6, 3, Q("2.125 mm")),
    Sketcher.Constraint("DistanceX", -1, 1, 0, 2, Q("10.729031 mm")),
    Sketcher.Constraint("DistanceY", -1, 1, 1, 2, Q("2.42429 mm")),
])
pad5 = body5.newObject("PartDesign::Pad", "Pad004")
pad5.Profile = sketch5
pad5.Length = 10
doc.recompute()

chamfer9 = body5.newObject("PartDesign::Chamfer", "Chamfer008")
chamfer9.Base = (pad5, edges_at(pad5, [
    (12.875, 7.378, 10),
    (15, 9.503, 10),
    (15, 5.253, 10),
    (17.125, 7.378, 10),
]))
chamfer9.Size = 0.6
doc.recompute()

chamfer10 = body5.newObject("PartDesign::Chamfer", "Chamfer009")
chamfer10.Base = (chamfer9, edges_at(chamfer9, [
    (12.875, 7.378, 0),
    (15, 5.253, 0),
    (17.125, 7.378, 0),
    (15, 9.503, 0),
]))
chamfer10.Size = 0.6
body6 = doc.addObject("PartDesign::Body", "Body005")

sketch6 = body6.newObject("Sketcher::SketchObject", "Sketch005")
sketch6.AttachmentSupport = (doc.getObject("XY_Plane005"), [""])
sketch6.MapMode = "FlatFace"
sketch6.addGeometry([
    Part.LineSegment(App.Vector(-18.6, -2.45, 0), App.Vector(-18.6, 1.85, 0)),
    Part.ArcOfCircle(Part.Circle(App.Vector(-15, 7.38, 0), App.Vector(0, 0, 1), 6.6), math.radians(-127.31), math.radians(-123.06)),
    Part.LineSegment(App.Vector(-19, 2.13, 0), App.Vector(-19, -2.77, 0)),
    Part.ArcOfCircle(Part.Circle(App.Vector(-15, -7.38, 0), App.Vector(0, 0, 1), 6.1), math.radians(126.17), math.radians(130.98)),
], False)
sketch6.addConstraint([
    Sketcher.Constraint("Coincident", 0, 2, 1, 2),
    Sketcher.Constraint("Coincident", 1, 1, 2, 1),
    Sketcher.Constraint("Coincident", 2, 2, 3, 2),
    Sketcher.Constraint("Coincident", 3, 1, 0, 1),
    Sketcher.Constraint("Vertical", 0),
    Sketcher.Constraint("Vertical", 2),
    Sketcher.Constraint("Symmetric", 1, 3, 3, 3, -1),
    Sketcher.Constraint("Radius", 1, Q("6.6 mm")),
    Sketcher.Constraint("Radius", 3, Q("6.1 mm")),
    Sketcher.Constraint("DistanceX", 1, 3, -1, 1, Q("15 mm")),
    Sketcher.Constraint("DistanceX", 1, 1, -1, 1, Q("19 mm")),
    Sketcher.Constraint("DistanceX", 0, 2, -1, 1, Q("18.6 mm")),
    Sketcher.Constraint("DistanceY", 0, 1, 0, 2, Q("4.299832 mm")),
])
pad6 = body6.newObject("PartDesign::Pad", "Pad005")
pad6.Profile = sketch6
pad6.Length = 0.4
body7 = doc.addObject("PartDesign::Body", "Body006")

sketch7 = body7.newObject("Sketcher::SketchObject", "Sketch006")
sketch7.AttachmentSupport = (doc.getObject("XY_Plane006"), [""])
sketch7.MapMode = "FlatFace"
sketch7.addGeometry([
    Part.ArcOfCircle(Part.Circle(App.Vector(-15, -7.38, 0), App.Vector(0, 0, 1), 6.1), math.radians(-36.43), math.radians(-31.88)),
    Part.LineSegment(App.Vector(-10.09, -11, 0), App.Vector(11.77, -11, 0)),
    Part.ArcOfCircle(Part.Circle(App.Vector(15, -7.38, 0), App.Vector(0, 0, 1), 4.85), math.radians(-138.37), math.radians(-131.69)),
    Part.LineSegment(App.Vector(11.37, -10.6, 0), App.Vector(-9.82, -10.6, 0)),
], False)
sketch7.addConstraint([
    Sketcher.Constraint("Coincident", 0, 1, 1, 1),
    Sketcher.Constraint("Coincident", 1, 2, 2, 2),
    Sketcher.Constraint("Coincident", 2, 1, 3, 1),
    Sketcher.Constraint("Coincident", 3, 2, 0, 2),
    Sketcher.Constraint("Horizontal", 1),
    Sketcher.Constraint("Horizontal", 3),
    Sketcher.Constraint("Symmetric", 0, 3, 2, 3, -2),
    Sketcher.Constraint("Radius", 0, Q("6.1 mm")),
    Sketcher.Constraint("Radius", 2, Q("4.85 mm")),
    Sketcher.Constraint("DistanceX", 0, 3, -1, 1, Q("15 mm")),
    Sketcher.Constraint("DistanceY", 0, 1, -1, 1, Q("11 mm")),
    Sketcher.Constraint("DistanceY", 2, 1, -1, 1, Q("10.6 mm")),
    Sketcher.Constraint("DistanceX", 1, 1, 1, 2, Q("21.866278 mm")),
])
pad7 = body7.newObject("PartDesign::Pad", "Pad006")
pad7.Profile = sketch7
pad7.Length = 0.4
body8 = doc.addObject("PartDesign::Body", "Body007")

sketch8 = body8.newObject("Sketcher::SketchObject", "Sketch007")
sketch8.AttachmentSupport = (doc.getObject("XY_Plane007"), [""])
sketch8.MapMode = "FlatFace"
sketch8.addGeometry([
    Part.ArcOfCircle(Part.Circle(App.Vector(15, 7.4, 0), App.Vector(0, 0, 1), 5.4), math.radians(-47.71), math.radians(-41.61)),
    Part.LineSegment(App.Vector(18.6, 3.4, 0), App.Vector(18.6, -4.1, 0)),
    Part.ArcOfCircle(Part.Circle(App.Vector(15, -7.4, 0), App.Vector(0, 0, 1), 4.8), math.radians(34.44), math.radians(42.08)),
    Part.LineSegment(App.Vector(19, -4.6, 0), App.Vector(19, 3.8, 0)),
], False)
sketch8.addConstraint([
    Sketcher.Constraint("Coincident", 0, 1, 1, 1),
    Sketcher.Constraint("Coincident", 1, 2, 2, 2),
    Sketcher.Constraint("Coincident", 2, 1, 3, 1),
    Sketcher.Constraint("Coincident", 3, 2, 0, 2),
    Sketcher.Constraint("Vertical", 1),
    Sketcher.Constraint("Vertical", 3),
    Sketcher.Constraint("Symmetric", 0, 3, 2, 3, -1),
    Sketcher.Constraint("Radius", 0, Q("5.35 mm")),
    Sketcher.Constraint("Radius", 2, Q("4.85 mm")),
    Sketcher.Constraint("DistanceX", -1, 1, 0, 3, Q("15 mm")),
    Sketcher.Constraint("DistanceX", -1, 1, 2, 1, Q("19 mm")),
    Sketcher.Constraint("DistanceX", -1, 1, 0, 1, Q("18.6 mm")),
    Sketcher.Constraint("DistanceY", 1, 2, 1, 1, Q("7.5484 mm")),
])
pad8 = body8.newObject("PartDesign::Pad", "Pad007")
pad8.Profile = sketch8
pad8.Length = 0.4
body9 = doc.addObject("PartDesign::Body", "Body008")

sketch9 = body9.newObject("Sketcher::SketchObject", "Sketch008")
sketch9.AttachmentSupport = (doc.getObject("XY_Plane008"), [""])
sketch9.MapMode = "FlatFace"
sketch9.addGeometry([
    Part.ArcOfCircle(Part.Circle(App.Vector(-15, 7.38, 0), App.Vector(0, 0, 1), 6.6), math.radians(29.22), math.radians(33.28)),
    Part.LineSegment(App.Vector(-9.24, 10.6, 0), App.Vector(10.73, 10.6, 0)),
    Part.ArcOfCircle(Part.Circle(App.Vector(15, 7.38, 0), App.Vector(0, 0, 1), 5.35), math.radians(137.39), math.radians(142.97)),
    Part.LineSegment(App.Vector(11.06, 11, 0), App.Vector(-9.48, 11, 0)),
], False)
sketch9.addConstraint([
    Sketcher.Constraint("Coincident", 0, 1, 1, 1),
    Sketcher.Constraint("Coincident", 1, 2, 2, 2),
    Sketcher.Constraint("Coincident", 2, 1, 3, 1),
    Sketcher.Constraint("Coincident", 3, 2, 0, 2),
    Sketcher.Constraint("Horizontal", 1),
    Sketcher.Constraint("Horizontal", 3),
    Sketcher.Constraint("Symmetric", 0, 3, 2, 3, -2),
    Sketcher.Constraint("Radius", 0, Q("6.6 mm")),
    Sketcher.Constraint("Radius", 2, Q("5.35 mm")),
    Sketcher.Constraint("DistanceX", 0, 3, -1, 1, Q("15 mm")),
    Sketcher.Constraint("DistanceY", -1, 1, 2, 1, Q("11 mm")),
    Sketcher.Constraint("DistanceY", -1, 1, 0, 1, Q("10.6 mm")),
    Sketcher.Constraint("DistanceX", 3, 2, 3, 1, Q("20.5452 mm")),
])
pad9 = body9.newObject("PartDesign::Pad", "Pad008")
pad9.Profile = sketch9
pad9.Length = 0.4

doc.recompute()
